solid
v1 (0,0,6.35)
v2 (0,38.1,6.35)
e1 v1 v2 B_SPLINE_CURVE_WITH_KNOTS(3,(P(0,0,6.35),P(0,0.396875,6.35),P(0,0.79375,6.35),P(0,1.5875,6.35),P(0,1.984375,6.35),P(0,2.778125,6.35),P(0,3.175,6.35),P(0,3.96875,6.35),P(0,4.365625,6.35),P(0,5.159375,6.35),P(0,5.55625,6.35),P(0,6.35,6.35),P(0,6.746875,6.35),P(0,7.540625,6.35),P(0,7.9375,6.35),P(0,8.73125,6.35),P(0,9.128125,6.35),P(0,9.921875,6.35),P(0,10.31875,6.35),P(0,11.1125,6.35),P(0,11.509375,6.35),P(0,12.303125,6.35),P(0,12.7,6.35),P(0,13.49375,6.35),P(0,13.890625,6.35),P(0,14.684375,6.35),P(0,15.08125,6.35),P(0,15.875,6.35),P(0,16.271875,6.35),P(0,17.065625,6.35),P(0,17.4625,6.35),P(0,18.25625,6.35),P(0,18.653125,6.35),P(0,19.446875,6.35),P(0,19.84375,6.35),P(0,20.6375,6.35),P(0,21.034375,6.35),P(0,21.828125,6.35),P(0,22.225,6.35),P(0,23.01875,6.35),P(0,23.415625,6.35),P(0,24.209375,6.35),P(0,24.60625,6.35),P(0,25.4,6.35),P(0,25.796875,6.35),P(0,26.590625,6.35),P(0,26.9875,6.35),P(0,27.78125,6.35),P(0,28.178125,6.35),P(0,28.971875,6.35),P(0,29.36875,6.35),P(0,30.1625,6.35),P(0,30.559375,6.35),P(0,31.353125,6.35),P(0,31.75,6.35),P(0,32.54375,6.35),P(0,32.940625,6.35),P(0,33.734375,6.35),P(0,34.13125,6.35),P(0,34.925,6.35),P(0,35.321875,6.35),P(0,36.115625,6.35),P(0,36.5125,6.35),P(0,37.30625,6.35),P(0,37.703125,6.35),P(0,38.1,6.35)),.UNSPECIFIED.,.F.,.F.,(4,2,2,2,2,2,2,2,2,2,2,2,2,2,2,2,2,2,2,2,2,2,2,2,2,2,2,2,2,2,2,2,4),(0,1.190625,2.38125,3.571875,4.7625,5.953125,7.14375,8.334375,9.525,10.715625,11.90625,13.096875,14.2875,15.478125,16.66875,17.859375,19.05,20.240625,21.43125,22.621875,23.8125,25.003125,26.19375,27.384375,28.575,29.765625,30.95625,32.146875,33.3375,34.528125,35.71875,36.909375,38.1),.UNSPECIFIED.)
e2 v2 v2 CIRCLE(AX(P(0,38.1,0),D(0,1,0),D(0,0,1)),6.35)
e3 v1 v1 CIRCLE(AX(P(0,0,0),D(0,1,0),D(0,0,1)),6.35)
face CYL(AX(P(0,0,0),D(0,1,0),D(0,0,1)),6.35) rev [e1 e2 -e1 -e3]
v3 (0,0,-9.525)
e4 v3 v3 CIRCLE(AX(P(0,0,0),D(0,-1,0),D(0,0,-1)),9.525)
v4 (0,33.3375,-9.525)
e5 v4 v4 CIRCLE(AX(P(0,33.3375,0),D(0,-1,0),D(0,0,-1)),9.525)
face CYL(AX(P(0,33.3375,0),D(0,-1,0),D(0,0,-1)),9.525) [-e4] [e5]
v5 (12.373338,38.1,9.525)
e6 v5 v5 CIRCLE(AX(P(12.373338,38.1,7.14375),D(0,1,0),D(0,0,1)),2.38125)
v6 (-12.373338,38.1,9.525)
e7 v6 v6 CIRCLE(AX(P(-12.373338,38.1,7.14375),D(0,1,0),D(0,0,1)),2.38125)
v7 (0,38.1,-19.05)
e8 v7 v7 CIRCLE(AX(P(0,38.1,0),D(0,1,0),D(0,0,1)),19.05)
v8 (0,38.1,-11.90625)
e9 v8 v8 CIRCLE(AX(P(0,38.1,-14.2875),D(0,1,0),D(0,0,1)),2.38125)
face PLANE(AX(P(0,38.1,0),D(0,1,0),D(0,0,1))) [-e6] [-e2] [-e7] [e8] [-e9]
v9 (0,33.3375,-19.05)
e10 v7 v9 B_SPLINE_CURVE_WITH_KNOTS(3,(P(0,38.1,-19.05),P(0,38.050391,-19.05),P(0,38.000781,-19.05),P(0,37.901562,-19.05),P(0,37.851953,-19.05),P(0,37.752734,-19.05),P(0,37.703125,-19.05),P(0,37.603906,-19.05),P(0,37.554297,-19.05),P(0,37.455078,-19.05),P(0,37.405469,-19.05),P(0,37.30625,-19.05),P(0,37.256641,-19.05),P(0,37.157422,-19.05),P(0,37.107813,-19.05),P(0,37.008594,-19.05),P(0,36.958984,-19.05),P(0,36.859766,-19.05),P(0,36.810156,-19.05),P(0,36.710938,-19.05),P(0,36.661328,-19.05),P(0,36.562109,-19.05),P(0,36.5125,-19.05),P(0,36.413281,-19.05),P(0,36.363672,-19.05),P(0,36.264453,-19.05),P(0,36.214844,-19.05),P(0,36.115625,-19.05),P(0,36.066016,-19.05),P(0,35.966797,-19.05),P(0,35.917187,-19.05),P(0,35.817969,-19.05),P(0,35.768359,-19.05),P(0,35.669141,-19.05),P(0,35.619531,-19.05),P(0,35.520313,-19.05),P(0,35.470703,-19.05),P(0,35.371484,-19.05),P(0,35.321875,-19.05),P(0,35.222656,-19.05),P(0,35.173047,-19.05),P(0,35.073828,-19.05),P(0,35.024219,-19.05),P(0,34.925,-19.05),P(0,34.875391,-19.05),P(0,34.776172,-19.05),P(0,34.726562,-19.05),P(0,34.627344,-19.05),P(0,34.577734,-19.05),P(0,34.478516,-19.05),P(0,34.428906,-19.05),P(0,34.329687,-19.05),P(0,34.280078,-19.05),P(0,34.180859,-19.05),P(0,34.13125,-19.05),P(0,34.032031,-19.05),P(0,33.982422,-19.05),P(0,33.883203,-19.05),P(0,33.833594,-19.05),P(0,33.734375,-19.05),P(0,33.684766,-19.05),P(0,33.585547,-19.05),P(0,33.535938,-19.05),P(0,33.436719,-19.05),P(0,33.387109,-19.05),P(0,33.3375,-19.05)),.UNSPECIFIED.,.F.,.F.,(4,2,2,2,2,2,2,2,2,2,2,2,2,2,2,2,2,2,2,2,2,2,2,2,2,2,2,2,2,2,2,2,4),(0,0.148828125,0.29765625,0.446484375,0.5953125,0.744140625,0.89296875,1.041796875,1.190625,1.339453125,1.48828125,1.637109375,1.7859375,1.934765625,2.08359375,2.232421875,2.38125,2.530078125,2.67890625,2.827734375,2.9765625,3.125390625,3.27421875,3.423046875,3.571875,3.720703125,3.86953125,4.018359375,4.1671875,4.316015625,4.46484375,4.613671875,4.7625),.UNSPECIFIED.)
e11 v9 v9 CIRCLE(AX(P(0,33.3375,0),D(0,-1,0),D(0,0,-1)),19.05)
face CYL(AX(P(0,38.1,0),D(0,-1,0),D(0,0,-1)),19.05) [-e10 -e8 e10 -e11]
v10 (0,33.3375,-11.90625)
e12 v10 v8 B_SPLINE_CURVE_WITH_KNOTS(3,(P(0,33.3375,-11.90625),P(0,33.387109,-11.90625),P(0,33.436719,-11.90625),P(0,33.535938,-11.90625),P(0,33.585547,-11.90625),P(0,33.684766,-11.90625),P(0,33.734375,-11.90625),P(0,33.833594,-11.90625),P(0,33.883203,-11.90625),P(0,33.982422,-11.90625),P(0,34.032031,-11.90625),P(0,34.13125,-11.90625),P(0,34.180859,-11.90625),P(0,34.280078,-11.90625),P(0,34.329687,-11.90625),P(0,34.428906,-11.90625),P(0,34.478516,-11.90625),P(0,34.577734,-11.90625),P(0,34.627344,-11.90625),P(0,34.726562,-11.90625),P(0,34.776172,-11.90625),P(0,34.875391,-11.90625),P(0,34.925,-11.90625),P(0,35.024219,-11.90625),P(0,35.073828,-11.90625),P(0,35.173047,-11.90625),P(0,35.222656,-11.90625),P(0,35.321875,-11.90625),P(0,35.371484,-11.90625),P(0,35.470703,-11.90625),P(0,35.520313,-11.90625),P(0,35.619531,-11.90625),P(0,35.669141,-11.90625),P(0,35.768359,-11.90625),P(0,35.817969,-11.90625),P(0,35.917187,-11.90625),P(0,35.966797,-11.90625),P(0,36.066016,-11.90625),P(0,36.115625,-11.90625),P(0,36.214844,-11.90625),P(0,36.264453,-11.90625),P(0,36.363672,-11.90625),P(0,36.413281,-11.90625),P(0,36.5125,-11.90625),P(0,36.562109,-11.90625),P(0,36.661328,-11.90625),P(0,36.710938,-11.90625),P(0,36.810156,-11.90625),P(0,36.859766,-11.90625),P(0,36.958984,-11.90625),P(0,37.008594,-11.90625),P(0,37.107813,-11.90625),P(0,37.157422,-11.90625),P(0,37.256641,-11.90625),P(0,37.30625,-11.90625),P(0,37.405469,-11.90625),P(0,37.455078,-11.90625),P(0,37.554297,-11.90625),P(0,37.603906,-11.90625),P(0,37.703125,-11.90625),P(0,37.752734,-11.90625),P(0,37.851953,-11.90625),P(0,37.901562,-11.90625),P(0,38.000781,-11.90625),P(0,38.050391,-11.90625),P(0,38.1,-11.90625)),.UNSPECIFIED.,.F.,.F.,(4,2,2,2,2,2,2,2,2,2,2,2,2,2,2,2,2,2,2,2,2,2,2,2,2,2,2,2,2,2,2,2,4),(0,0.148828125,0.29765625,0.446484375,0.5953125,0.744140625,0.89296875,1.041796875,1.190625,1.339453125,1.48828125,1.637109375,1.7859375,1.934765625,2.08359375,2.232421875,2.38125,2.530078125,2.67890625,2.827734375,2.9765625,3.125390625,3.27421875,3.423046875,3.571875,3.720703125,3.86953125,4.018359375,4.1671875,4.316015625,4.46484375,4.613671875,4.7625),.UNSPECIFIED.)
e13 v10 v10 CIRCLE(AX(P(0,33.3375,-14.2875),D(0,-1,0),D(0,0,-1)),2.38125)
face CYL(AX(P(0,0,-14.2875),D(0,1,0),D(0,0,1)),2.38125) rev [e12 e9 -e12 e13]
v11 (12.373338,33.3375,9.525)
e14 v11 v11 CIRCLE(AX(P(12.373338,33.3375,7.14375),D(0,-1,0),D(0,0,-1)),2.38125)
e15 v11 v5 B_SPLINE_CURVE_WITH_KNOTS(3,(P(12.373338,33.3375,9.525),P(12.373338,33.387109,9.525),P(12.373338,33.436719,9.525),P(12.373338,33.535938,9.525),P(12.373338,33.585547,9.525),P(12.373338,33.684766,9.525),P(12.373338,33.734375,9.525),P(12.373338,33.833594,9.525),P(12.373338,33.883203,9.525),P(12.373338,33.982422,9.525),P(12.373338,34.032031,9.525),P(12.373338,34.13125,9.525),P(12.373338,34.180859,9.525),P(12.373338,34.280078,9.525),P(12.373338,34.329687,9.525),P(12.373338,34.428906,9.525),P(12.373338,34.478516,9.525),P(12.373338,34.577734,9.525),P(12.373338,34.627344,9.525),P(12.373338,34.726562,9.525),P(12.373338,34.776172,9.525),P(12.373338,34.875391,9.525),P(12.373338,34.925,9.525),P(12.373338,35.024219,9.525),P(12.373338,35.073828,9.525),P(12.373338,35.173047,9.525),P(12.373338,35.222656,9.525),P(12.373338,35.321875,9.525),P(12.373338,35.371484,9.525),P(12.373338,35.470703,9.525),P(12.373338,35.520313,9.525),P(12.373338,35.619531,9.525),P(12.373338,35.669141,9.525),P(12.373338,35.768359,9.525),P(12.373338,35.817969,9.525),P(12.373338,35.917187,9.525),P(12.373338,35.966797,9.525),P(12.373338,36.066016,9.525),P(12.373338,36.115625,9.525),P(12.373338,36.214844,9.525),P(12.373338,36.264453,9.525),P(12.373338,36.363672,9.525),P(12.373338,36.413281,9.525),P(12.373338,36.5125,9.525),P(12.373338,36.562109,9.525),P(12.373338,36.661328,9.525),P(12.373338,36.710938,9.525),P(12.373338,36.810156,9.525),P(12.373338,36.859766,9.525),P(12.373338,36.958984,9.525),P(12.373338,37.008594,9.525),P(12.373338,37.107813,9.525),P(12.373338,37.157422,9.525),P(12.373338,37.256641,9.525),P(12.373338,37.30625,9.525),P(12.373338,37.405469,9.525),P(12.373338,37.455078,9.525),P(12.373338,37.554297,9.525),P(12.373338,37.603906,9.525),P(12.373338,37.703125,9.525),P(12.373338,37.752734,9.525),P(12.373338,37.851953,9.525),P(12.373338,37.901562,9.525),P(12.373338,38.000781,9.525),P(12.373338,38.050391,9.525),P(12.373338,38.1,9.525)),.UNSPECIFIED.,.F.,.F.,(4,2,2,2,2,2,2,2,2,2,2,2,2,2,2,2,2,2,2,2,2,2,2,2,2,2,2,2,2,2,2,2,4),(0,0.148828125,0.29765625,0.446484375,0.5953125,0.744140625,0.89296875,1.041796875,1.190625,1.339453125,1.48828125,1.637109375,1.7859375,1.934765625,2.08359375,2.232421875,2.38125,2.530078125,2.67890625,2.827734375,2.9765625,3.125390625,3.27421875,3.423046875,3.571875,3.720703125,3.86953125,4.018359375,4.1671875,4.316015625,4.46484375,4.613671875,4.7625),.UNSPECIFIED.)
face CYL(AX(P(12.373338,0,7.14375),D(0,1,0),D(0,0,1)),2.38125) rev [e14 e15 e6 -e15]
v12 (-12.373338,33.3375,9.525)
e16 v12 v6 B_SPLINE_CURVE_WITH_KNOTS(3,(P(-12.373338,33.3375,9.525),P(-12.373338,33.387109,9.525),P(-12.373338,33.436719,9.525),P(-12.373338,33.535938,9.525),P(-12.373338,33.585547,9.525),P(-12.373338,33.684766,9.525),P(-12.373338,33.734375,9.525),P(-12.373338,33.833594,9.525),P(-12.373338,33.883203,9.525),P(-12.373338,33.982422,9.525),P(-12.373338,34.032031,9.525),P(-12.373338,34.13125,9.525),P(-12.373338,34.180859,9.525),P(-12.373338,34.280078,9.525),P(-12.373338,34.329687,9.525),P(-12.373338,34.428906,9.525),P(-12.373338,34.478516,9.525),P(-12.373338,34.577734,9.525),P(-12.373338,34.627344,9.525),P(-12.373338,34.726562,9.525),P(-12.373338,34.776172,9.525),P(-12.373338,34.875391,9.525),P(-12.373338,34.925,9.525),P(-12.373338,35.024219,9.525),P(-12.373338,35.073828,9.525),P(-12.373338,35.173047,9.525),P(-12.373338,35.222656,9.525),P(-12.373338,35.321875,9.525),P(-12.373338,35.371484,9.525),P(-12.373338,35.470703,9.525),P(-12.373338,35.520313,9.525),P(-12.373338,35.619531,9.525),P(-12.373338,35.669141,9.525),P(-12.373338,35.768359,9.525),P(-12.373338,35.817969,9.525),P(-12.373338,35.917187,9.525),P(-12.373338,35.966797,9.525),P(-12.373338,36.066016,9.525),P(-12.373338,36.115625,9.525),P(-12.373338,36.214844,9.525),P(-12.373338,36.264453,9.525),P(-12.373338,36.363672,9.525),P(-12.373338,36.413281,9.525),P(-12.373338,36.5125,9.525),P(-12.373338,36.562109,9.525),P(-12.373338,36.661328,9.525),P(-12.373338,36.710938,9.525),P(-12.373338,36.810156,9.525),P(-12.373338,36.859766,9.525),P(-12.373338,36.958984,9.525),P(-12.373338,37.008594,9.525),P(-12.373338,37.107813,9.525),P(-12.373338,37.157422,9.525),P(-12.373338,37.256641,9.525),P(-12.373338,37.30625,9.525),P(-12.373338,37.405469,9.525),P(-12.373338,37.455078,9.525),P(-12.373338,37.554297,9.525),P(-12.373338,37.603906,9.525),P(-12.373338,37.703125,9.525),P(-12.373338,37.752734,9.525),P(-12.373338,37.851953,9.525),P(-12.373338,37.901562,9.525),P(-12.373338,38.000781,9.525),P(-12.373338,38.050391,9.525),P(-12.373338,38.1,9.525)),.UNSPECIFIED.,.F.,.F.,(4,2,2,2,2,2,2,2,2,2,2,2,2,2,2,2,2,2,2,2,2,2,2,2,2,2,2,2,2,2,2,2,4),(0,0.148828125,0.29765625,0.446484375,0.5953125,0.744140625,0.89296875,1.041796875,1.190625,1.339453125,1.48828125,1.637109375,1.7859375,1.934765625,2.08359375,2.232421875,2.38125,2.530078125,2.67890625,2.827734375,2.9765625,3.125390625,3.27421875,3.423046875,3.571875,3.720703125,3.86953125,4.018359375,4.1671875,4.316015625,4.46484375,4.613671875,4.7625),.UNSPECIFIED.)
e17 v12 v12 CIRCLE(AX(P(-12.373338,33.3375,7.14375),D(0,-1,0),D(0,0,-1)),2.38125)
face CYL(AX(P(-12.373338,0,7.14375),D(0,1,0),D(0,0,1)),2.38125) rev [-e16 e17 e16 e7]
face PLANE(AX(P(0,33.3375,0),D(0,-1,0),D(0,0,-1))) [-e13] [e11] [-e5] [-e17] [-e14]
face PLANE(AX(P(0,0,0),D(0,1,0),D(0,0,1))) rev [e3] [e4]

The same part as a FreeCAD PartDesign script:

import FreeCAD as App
import Part
import Sketcher

V = App.Vector
Q = App.Units.Quantity

doc = App.newDocument("Part")
body = doc.addObject("PartDesign::Body", "Body")

# Sketch on XZ plane
sketch1 = body.newObject("Sketcher::SketchObject", "Sketch")
sketch1.AttachmentSupport = (doc.getObject("XZ_Plane"), [""])
sketch1.MapMode = "FlatFace"
sketch1.addGeometry(Part.Circle(V(0, 0, 0), V(0, 0, 1), 19), False)
sketch1.addConstraint(Sketcher.Constraint("Coincident", 0, 3, -1, 1))
sketch1.addConstraint(Sketcher.Constraint("Diameter", 0, Q("1.5 in")))
pad1 = body.newObject("PartDesign::Pad", "Pad")
pad1.Profile = sketch1
pad1.Length = Q("1.5 in")
pad1.Reversed = True

# Sketch on XZ plane
sketch2 = body.newObject("Sketcher::SketchObject", "Sketch001")
sketch2.AttachmentSupport = (doc.getObject("XZ_Plane"), [""])
sketch2.MapMode = "FlatFace"
sketch2.addGeometry(Part.Circle(V(0, 0, 0), V(0, 0, 1), 19), False)
sketch2.addGeometry(Part.Circle(V(0, 0, 0), V(0, 0, 1), 10), False)
sketch2.addConstraint(Sketcher.Constraint("Coincident", 0, 3, -1, 1))
sketch2.addConstraint(Sketcher.Constraint("Coincident", 1, 3, -1, 1))
sketch2.addConstraint(Sketcher.Constraint("Diameter", 0, Q("1.5 in")))
sketch2.addConstraint(Sketcher.Constraint("Diameter", 1, Q("0.75 in")))
pocket1 = body.newObject("PartDesign::Pocket", "Pocket")
pocket1.Profile = sketch2
pocket1.Length = Q("1.3125 in")

# Sketch on XZ plane
sketch3 = body.newObject("Sketcher::SketchObject", "Sketch002")
sketch3.AttachmentSupport = (doc.getObject("XZ_Plane"), [""])
sketch3.MapMode = "FlatFace"
sketch3.AttachmentOffset = App.Placement(V(0, 0, -1.5 * 25.4), App.Rotation())
sketch3.addGeometry(Part.Circle(V(0, 0, 0), V(0, 0, 1), 6.3), False)
sketch3.addGeometry(Part.Circle(V(0, -14.3, 0), V(0, 0, 1), 2.4), False)
sketch3.addGeometry(Part.Circle(V(12.4, 7.1, 0), V(0, 0, 1), 2.4), False)
sketch3.addGeometry(Part.Circle(V(-12.4, 7.1, 0), V(0, 0, 1), 2.4), False)
sketch3.addConstraint(Sketcher.Constraint("Coincident", 0, 3, -1, 1))
sketch3.addConstraint(Sketcher.Constraint("Equal", 1, 2))
sketch3.addConstraint(Sketcher.Constraint("Equal", 2, 3))
sketch3.addConstraint(Sketcher.Constraint("Symmetric", 2, 3, 3, 3, -2))
sketch3.addConstraint(Sketcher.Constraint("PointOnObject", 1, 3, -2))
sketch3.addConstraint(Sketcher.Constraint("Diameter", 0, Q("0.5 in")))
sketch3.addConstraint(Sketcher.Constraint("Diameter", 1, Q("0.1875 in")))
sketch3.addConstraint(Sketcher.Constraint("DistanceY", 1, 3, -1, 1, Q("0.5625 in")))
sketch3.addConstraint(Sketcher.Constraint("DistanceY", -1, 1, 2, 3, Q("0.28125 in")))
sketch3.addConstraint(Sketcher.Constraint("DistanceX", -1, 1, 2, 3, Q("12.373338 mm")))
pocket2 = body.newObject("PartDesign::Pocket", "Pocket001")
pocket2.Profile = sketch3
pocket2.Length = Q("1.5 in")
pocket2.Reversed = True

doc.recompute()
